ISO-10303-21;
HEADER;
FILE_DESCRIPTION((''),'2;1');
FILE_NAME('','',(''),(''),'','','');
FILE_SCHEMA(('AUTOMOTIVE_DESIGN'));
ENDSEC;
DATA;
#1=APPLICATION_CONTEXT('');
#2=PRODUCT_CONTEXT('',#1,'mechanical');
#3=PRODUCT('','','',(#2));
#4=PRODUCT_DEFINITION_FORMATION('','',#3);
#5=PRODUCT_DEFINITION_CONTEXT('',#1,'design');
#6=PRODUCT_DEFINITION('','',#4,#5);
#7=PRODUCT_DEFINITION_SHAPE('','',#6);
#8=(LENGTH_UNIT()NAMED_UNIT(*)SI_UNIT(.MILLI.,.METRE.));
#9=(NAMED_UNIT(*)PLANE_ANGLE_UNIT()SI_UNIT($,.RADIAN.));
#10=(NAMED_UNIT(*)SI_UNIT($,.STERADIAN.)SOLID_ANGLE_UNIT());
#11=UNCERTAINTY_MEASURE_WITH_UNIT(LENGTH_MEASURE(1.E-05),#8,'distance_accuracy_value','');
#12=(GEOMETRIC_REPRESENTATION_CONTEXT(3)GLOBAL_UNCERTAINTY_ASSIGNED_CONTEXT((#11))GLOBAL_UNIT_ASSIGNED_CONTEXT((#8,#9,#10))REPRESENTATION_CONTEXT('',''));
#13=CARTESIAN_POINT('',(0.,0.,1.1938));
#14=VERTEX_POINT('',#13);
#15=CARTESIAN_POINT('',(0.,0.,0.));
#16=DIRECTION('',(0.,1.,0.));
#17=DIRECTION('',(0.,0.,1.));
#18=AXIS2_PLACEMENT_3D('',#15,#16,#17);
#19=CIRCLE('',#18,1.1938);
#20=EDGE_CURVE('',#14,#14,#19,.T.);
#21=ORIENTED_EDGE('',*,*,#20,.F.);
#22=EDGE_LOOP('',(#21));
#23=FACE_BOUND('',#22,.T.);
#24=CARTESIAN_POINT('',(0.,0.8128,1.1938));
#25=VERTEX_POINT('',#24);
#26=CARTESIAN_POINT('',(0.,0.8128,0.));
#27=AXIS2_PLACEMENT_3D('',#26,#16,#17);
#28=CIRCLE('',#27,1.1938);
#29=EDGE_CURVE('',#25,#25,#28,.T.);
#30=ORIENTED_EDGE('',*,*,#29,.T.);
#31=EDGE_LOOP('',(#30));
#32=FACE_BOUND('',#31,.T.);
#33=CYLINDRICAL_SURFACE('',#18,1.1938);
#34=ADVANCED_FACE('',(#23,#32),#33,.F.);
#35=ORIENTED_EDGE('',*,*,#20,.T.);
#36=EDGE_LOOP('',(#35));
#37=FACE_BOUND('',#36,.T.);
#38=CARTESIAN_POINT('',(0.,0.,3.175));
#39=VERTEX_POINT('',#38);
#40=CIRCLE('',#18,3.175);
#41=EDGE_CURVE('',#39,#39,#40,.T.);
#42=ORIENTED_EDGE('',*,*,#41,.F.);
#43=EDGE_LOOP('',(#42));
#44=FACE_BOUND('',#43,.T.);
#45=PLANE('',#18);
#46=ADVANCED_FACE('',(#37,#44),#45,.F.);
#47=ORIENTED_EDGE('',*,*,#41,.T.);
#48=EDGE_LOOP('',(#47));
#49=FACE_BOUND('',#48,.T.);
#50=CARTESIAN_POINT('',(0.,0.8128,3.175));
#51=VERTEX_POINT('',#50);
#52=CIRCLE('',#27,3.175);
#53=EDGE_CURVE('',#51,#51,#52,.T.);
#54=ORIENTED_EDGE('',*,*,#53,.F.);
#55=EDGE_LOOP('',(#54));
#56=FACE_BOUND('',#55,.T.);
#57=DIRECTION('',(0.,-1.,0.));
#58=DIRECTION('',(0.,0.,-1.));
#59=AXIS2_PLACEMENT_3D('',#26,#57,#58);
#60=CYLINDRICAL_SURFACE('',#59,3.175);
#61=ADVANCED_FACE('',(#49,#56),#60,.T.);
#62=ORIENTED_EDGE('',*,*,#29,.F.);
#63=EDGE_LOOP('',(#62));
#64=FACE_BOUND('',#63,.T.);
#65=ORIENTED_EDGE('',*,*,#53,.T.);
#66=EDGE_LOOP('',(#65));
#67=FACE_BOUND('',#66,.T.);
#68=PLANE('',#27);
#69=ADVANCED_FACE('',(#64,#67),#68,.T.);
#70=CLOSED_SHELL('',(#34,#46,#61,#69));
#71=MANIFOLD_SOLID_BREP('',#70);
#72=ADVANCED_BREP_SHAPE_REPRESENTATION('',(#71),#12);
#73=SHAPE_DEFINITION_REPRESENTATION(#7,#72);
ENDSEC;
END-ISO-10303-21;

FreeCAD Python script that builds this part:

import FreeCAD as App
import Part
import Sketcher
Q = App.Units.Quantity

doc = App.newDocument("Part")
body = doc.addObject("PartDesign::Body", "Body")

sketch1 = doc.addObject("Sketcher::SketchObject", "Sketch")
body.addObject(sketch1)
sketch1.AttachmentSupport = (doc.XZ_Plane, [""])
sketch1.MapMode = "FlatFace"
sketch1.addGeometry(Part.Circle(App.Vector(0, 0, 0), App.Vector(0, 0, 1), 3.2), False)
sketch1.addConstraint(Sketcher.Constraint("Coincident", 0, 3, -1, 1))
sketch1.addConstraint(Sketcher.Constraint("Diameter", 0, Q("0.25 in")))
pad1 = doc.addObject("PartDesign::Pad", "Pad")
body.addObject(pad1)
pad1.Profile = sketch1
pad1.Length = Q("0.032 in")
pad1.Reversed = True

sketch2 = doc.addObject("Sketcher::SketchObject", "Sketch001")
body.addObject(sketch2)
sketch2.AttachmentSupport = (doc.XZ_Plane, [""])
sketch2.MapMode = "FlatFace"
sketch2.AttachmentOffset = App.Placement(App.Vector(0, 0, -0.032 * 25.4), App.Rotation())
sketch2.addGeometry(Part.Circle(App.Vector(0, 0, 0), App.Vector(0, 0, 1), 1.2), False)
sketch2.addConstraint(Sketcher.Constraint("Coincident", 0, 3, -1, 1))
sketch2.addConstraint(Sketcher.Constraint("Diameter", 0, Q("0.094 in")))
pocket1 = doc.addObject("PartDesign::Pocket", "Pocket")
body.addObject(pocket1)
pocket1.Profile = sketch2
pocket1.Type = "ThroughAll"
pocket1.Reversed = True

doc.recompute()
